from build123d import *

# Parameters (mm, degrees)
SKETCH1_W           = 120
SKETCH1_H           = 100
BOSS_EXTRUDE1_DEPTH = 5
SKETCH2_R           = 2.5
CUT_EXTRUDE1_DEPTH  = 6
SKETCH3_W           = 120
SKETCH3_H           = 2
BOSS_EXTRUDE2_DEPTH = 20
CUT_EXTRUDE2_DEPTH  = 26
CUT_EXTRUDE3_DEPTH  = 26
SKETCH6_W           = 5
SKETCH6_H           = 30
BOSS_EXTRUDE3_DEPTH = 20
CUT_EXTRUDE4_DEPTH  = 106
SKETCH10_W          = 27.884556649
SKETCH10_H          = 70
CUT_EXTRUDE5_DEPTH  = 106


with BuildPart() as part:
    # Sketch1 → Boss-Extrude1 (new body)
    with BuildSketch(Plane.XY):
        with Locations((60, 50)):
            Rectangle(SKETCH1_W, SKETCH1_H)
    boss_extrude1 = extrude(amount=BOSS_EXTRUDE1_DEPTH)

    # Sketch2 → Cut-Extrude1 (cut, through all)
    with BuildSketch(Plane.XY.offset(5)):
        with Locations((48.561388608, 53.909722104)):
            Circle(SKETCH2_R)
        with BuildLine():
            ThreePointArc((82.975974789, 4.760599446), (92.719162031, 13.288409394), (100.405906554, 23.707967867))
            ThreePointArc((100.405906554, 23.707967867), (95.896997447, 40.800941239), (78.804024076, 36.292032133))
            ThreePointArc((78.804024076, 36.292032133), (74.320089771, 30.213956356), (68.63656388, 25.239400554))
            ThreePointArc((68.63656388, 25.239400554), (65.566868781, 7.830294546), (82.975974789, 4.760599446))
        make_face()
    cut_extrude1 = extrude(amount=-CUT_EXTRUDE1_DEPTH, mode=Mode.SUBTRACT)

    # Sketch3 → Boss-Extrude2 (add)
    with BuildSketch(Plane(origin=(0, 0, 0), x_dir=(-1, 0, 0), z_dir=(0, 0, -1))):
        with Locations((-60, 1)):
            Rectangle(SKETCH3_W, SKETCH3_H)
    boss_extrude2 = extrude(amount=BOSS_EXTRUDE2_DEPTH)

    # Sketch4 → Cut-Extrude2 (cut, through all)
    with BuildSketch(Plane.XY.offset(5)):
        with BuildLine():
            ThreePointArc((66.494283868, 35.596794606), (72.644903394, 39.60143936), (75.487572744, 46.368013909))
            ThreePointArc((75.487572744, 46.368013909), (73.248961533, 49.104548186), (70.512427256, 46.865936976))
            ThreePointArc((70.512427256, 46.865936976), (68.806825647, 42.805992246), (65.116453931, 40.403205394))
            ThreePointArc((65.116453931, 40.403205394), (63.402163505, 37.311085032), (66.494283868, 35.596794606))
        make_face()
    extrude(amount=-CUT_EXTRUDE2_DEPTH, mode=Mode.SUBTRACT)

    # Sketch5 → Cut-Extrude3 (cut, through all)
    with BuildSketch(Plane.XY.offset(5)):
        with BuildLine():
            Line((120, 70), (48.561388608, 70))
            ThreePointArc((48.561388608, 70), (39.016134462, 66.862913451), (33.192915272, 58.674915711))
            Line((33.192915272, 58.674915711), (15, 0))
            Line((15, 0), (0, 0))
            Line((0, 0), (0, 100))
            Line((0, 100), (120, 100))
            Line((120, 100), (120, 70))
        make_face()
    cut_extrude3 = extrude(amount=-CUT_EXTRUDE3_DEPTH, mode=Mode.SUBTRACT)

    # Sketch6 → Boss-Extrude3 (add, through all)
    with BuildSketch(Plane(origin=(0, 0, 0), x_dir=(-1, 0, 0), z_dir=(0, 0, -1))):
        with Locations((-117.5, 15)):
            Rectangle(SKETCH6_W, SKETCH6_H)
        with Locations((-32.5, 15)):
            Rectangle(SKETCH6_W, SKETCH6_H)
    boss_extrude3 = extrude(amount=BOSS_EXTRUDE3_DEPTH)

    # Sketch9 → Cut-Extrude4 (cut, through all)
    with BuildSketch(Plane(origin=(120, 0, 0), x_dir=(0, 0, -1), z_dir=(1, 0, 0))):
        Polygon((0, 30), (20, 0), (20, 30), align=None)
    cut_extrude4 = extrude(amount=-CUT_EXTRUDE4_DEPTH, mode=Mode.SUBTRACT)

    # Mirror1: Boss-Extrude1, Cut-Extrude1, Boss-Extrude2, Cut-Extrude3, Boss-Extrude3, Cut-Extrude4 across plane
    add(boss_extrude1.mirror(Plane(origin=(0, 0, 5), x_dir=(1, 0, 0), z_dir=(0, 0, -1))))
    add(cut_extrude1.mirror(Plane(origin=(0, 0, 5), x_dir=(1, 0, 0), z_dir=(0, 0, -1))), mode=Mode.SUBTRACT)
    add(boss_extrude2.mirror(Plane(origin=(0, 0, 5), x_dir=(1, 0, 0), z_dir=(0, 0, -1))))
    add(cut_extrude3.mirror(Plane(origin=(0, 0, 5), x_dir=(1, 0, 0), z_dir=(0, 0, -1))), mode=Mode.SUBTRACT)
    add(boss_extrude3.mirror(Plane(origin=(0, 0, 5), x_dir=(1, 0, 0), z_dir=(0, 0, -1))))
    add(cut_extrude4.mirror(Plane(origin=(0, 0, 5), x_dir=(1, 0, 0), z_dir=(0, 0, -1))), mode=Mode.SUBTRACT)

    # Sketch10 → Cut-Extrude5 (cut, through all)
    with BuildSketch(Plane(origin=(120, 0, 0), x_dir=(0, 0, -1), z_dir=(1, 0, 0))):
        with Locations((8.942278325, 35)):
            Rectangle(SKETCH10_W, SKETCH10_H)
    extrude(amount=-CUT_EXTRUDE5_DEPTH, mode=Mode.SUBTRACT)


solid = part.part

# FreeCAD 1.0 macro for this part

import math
import FreeCAD as App
import Part
import Sketcher
Q = App.Units.Quantity

doc = App.newDocument("Part")
body = doc.addObject("PartDesign::Body", "Body")

sketch1 = doc.addObject("Sketcher::SketchObject", "Sketch")
body.addObject(sketch1)
sketch1.AttachmentSupport = (doc.XY_Plane, [""])
sketch1.MapMode = "FlatFace"
sketch1.addGeometry(Part.LineSegment(App.Vector(0, 100, 0), App.Vector(0, 0, 0)), False)
sketch1.addGeometry(Part.LineSegment(App.Vector(0, 0, 0), App.Vector(120, 0, 0)), False)
sketch1.addGeometry(Part.LineSegment(App.Vector(120, 0, 0), App.Vector(120, 100, 0)), False)
sketch1.addGeometry(Part.LineSegment(App.Vector(120, 100, 0), App.Vector(0, 100, 0)), False)
sketch1.addConstraint(Sketcher.Constraint("Coincident", 0, 2, 1, 1))
sketch1.addConstraint(Sketcher.Constraint("Coincident", 1, 2, 2, 1))
sketch1.addConstraint(Sketcher.Constraint("Coincident", 2, 2, 3, 1))
sketch1.addConstraint(Sketcher.Constraint("Coincident", 3, 2, 0, 1))
sketch1.addConstraint(Sketcher.Constraint("Vertical", 0))
sketch1.addConstraint(Sketcher.Constraint("Horizontal", 1))
sketch1.addConstraint(Sketcher.Constraint("Vertical", 2))
sketch1.addConstraint(Sketcher.Constraint("Horizontal", 3))
sketch1.addConstraint(Sketcher.Constraint("Coincident", 0, 2, -1, 1))
sketch1.addConstraint(Sketcher.Constraint("DistanceX", 1, 1, 1, 2, Q("120 mm")))
sketch1.addConstraint(Sketcher.Constraint("DistanceY", 0, 2, 0, 1, Q("100 mm")))
pad1 = doc.addObject("PartDesign::Pad", "Pad")
body.addObject(pad1)
pad1.Profile = sketch1
pad1.Length = 5

sketch2 = doc.addObject("Sketcher::SketchObject", "Sketch001")
body.addObject(sketch2)
sketch2.AttachmentSupport = (doc.XY_Plane, [""])
sketch2.MapMode = "FlatFace"
sketch2.AttachmentOffset = App.Placement(App.Vector(0, 0, 5), App.Rotation())
sketch2.addGeometry(Part.Circle(App.Vector(48.6, 53.9, 0), App.Vector(0, 0, 1), 2.5), False)
sketch2.addGeometry(Part.ArcOfCircle(Part.Circle(App.Vector(48.6, 53.9, 0), App.Vector(0, 0, 1), 60), math.radians(-55), math.radians(-30)), False)
sketch2.addGeometry(Part.ArcOfCircle(Part.Circle(App.Vector(89.6, 30, 0), App.Vector(0, 0, 1), 12.5), math.radians(-30), math.radians(150)), False)
sketch2.addGeometry(Part.ArcOfCircle(Part.Circle(App.Vector(48.6, 53.9, 0), App.Vector(0, 0, 1), 35), math.radians(-55), math.radians(-30)), False)
sketch2.addGeometry(Part.ArcOfCircle(Part.Circle(App.Vector(75.8, 15, 0), App.Vector(0, 0, 1), 12.5), math.radians(125), math.radians(305)), False)
sketch2.addConstraint(Sketcher.Constraint("Tangent", 1, 2, 2, 1))
sketch2.addConstraint(Sketcher.Constraint("Tangent", 2, 2, 3, 2))
sketch2.addConstraint(Sketcher.Constraint("Tangent", 3, 1, 4, 1))
sketch2.addConstraint(Sketcher.Constraint("Tangent", 4, 2, 1, 1))
sketch2.addConstraint(Sketcher.Constraint("Coincident", 1, 3, 0, 3))
sketch2.addConstraint(Sketcher.Constraint("Coincident", 3, 3, 0, 3))
sketch2.addConstraint(Sketcher.Constraint("Diameter", 0, Q("5 mm")))
sketch2.addConstraint(Sketcher.Constraint("Radius", 1, Q("60 mm")))
sketch2.addConstraint(Sketcher.Constraint("Radius", 3, Q("35 mm")))
sketch2.addConstraint(Sketcher.Constraint("DistanceY", -1, 1, 2, 3, Q("30 mm")))
sketch2.addConstraint(Sketcher.Constraint("DistanceY", -1, 1, 4, 3, Q("15 mm")))
sketch2.addConstraint(Sketcher.Constraint("DistanceY", -1, 1, 3, 1, Q("25.239401 mm")))
sketch2.addConstraint(Sketcher.Constraint("DistanceX", -1, 1, 0, 3, Q("48.561389 mm")))
pocket1 = doc.addObject("PartDesign::Pocket", "Pocket")
body.addObject(pocket1)
pocket1.Profile = sketch2
pocket1.Type = "ThroughAll"

sketch3 = doc.addObject("Sketcher::SketchObject", "Sketch002")
body.addObject(sketch3)
sketch3.AttachmentSupport = (doc.XY_Plane, [""])
sketch3.MapMode = "FlatFace"
sketch3.addGeometry(Part.LineSegment(App.Vector(120, 2, 0), App.Vector(120, 0, 0)), False)
sketch3.addGeometry(Part.LineSegment(App.Vector(120, 0, 0), App.Vector(0, 0, 0)), False)
sketch3.addGeometry(Part.LineSegment(App.Vector(0, 0, 0), App.Vector(0, 2, 0)), False)
sketch3.addGeometry(Part.LineSegment(App.Vector(0, 2, 0), App.Vector(120, 2, 0)), False)
sketch3.addConstraint(Sketcher.Constraint("Coincident", 0, 2, 1, 1))
sketch3.addConstraint(Sketcher.Constraint("Coincident", 1, 2, 2, 1))
sketch3.addConstraint(Sketcher.Constraint("Coincident", 2, 2, 3, 1))
sketch3.addConstraint(Sketcher.Constraint("Coincident", 3, 2, 0, 1))
sketch3.addConstraint(Sketcher.Constraint("Vertical", 0))
sketch3.addConstraint(Sketcher.Constraint("Horizontal", 1))
sketch3.addConstraint(Sketcher.Constraint("Vertical", 2))
sketch3.addConstraint(Sketcher.Constraint("Horizontal", 3))
sketch3.addConstraint(Sketcher.Constraint("Coincident", 1, 2, -1, 1))
sketch3.addConstraint(Sketcher.Constraint("DistanceX", 1, 2, 1, 1, Q("120 mm")))
sketch3.addConstraint(Sketcher.Constraint("DistanceY", 0, 2, 0, 1, Q("2 mm")))
pad2 = doc.addObject("PartDesign::Pad", "Pad001")
body.addObject(pad2)
pad2.Profile = sketch3
pad2.Length = 20
pad2.Reversed = True

sketch4 = doc.addObject("Sketcher::SketchObject", "Sketch003")
body.addObject(sketch4)
sketch4.AttachmentSupport = (doc.XY_Plane, [""])
sketch4.MapMode = "FlatFace"
sketch4.AttachmentOffset = App.Placement(App.Vector(0, 0, 5), App.Rotation())
sketch4.addGeometry(Part.ArcOfCircle(Part.Circle(App.Vector(63, 47.6, 0), App.Vector(0, 0, 1), 12.5), math.radians(-74), math.radians(-6)), False)
sketch4.addGeometry(Part.ArcOfCircle(Part.Circle(App.Vector(73, 46.6, 0), App.Vector(0, 0, 1), 2.5), math.radians(-6), math.radians(174)), False)
sketch4.addGeometry(Part.ArcOfCircle(Part.Circle(App.Vector(63, 47.6, 0), App.Vector(0, 0, 1), 7.5), math.radians(-74), math.radians(-6)), False)
sketch4.addGeometry(Part.ArcOfCircle(Part.Circle(App.Vector(65.8, 38, 0), App.Vector(0, 0, 1), 2.5), math.radians(106), math.radians(286)), False)
sketch4.addConstraint(Sketcher.Constraint("Tangent", 0, 2, 1, 1))
sketch4.addConstraint(Sketcher.Constraint("Tangent", 1, 2, 2, 2))
sketch4.addConstraint(Sketcher.Constraint("Tangent", 2, 1, 3, 1))
sketch4.addConstraint(Sketcher.Constraint("Tangent", 3, 2, 0, 1))
sketch4.addConstraint(Sketcher.Constraint("Coincident", 2, 3, 0, 3))
sketch4.addConstraint(Sketcher.Constraint("Radius", 0, Q("12.5 mm")))
sketch4.addConstraint(Sketcher.Constraint("Radius", 1, Q("2.5 mm")))
sketch4.addConstraint(Sketcher.Constraint("DistanceX", -1, 1, 1, 3, Q("73 mm")))
sketch4.addConstraint(Sketcher.Constraint("DistanceY", -1, 1, 3, 3, Q("38 mm")))
sketch4.addConstraint(Sketcher.Constraint("DistanceX", -1, 1, 0, 3, Q("63.049709 mm")))
sketch4.addConstraint(Sketcher.Constraint("DistanceY", -1, 1, 0, 3, Q("47.612822 mm")))
pocket2 = doc.addObject("PartDesign::Pocket", "Pocket001")
body.addObject(pocket2)
pocket2.Profile = sketch4
pocket2.Type = "ThroughAll"

sketch5 = doc.addObject("Sketcher::SketchObject", "Sketch004")
body.addObject(sketch5)
sketch5.AttachmentSupport = (doc.XY_Plane, [""])
sketch5.MapMode = "FlatFace"
sketch5.AttachmentOffset = App.Placement(App.Vector(0, 0, 5), App.Rotation())
sketch5.addGeometry(Part.LineSegment(App.Vector(49, 70, 0), App.Vector(120, 70, 0)), False)
sketch5.addGeometry(Part.LineSegment(App.Vector(120, 70, 0), App.Vector(120, 100, 0)), False)
sketch5.addGeometry(Part.LineSegment(App.Vector(120, 100, 0), App.Vector(0, 100, 0)), False)
sketch5.addGeometry(Part.LineSegment(App.Vector(0, 100, 0), App.Vector(0, 0, 0)), False)
sketch5.addGeometry(Part.LineSegment(App.Vector(0, 0, 0), App.Vector(15, 0, 0)), False)
sketch5.addGeometry(Part.LineSegment(App.Vector(15, 0, 0), App.Vector(33, 59, 0)), False)
sketch5.addGeometry(Part.ArcOfCircle(Part.Circle(App.Vector(49, 54, 0), App.Vector(0, 0, 1), 16), math.radians(90), math.radians(163)), False)
sketch5.addConstraint(Sketcher.Constraint("Coincident", 0, 2, 1, 1))
sketch5.addConstraint(Sketcher.Constraint("Coincident", 1, 2, 2, 1))
sketch5.addConstraint(Sketcher.Constraint("Coincident", 2, 2, 3, 1))
sketch5.addConstraint(Sketcher.Constraint("Coincident", 3, 2, 4, 1))
sketch5.addConstraint(Sketcher.Constraint("Coincident", 4, 2, 5, 1))
sketch5.addConstraint(Sketcher.Constraint("Tangent", 5, 2, 6, 2))
sketch5.addConstraint(Sketcher.Constraint("Tangent", 6, 1, 0, 1))
sketch5.addConstraint(Sketcher.Constraint("Horizontal", 0))
sketch5.addConstraint(Sketcher.Constraint("Vertical", 1))
sketch5.addConstraint(Sketcher.Constraint("Horizontal", 2))
sketch5.addConstraint(Sketcher.Constraint("Vertical", 3))
sketch5.addConstraint(Sketcher.Constraint("Horizontal", 4))
sketch5.addConstraint(Sketcher.Constraint("Coincident", 3, 2, -1, 1))
sketch5.addConstraint(Sketcher.Constraint("DistanceX", 2, 2, 2, 1, Q("120 mm")))
sketch5.addConstraint(Sketcher.Constraint("DistanceX", 4, 1, 4, 2, Q("15 mm")))
sketch5.addConstraint(Sketcher.Constraint("DistanceY", 1, 1, 1, 2, Q("30 mm")))
sketch5.addConstraint(Sketcher.Constraint("DistanceY", 3, 2, 3, 1, Q("100 mm")))
sketch5.addConstraint(Sketcher.Constraint("Radius", 6, Q("16.090278 mm")))
sketch5.addConstraint(Sketcher.Constraint("DistanceX", 0, 1, 0, 2, Q("71.438611 mm")))
pocket3 = doc.addObject("PartDesign::Pocket", "Pocket002")
body.addObject(pocket3)
pocket3.Profile = sketch5
pocket3.Type = "ThroughAll"

sketch6 = doc.addObject("Sketcher::SketchObject", "Sketch005")
body.addObject(sketch6)
sketch6.AttachmentSupport = (doc.XY_Plane, [""])
sketch6.MapMode = "FlatFace"
sketch6.addGeometry(Part.LineSegment(App.Vector(120, 30, 0), App.Vector(120, 0, 0)), False)
sketch6.addGeometry(Part.LineSegment(App.Vector(120, 0, 0), App.Vector(115, 0, 0)), False)
sketch6.addGeometry(Part.LineSegment(App.Vector(115, 0, 0), App.Vector(115, 30, 0)), False)
sketch6.addGeometry(Part.LineSegment(App.Vector(115, 30, 0), App.Vector(120, 30, 0)), False)
sketch6.addGeometry(Part.LineSegment(App.Vector(35, 30, 0), App.Vector(35, 0, 0)), False)
sketch6.addGeometry(Part.LineSegment(App.Vector(35, 0, 0), App.Vector(30, 0, 0)), False)
sketch6.addGeometry(Part.LineSegment(App.Vector(30, 0, 0), App.Vector(30, 30, 0)), False)
sketch6.addGeometry(Part.LineSegment(App.Vector(30, 30, 0), App.Vector(35, 30, 0)), False)
sketch6.addConstraint(Sketcher.Constraint("Coincident", 0, 2, 1, 1))
sketch6.addConstraint(Sketcher.Constraint("Coincident", 1, 2, 2, 1))
sketch6.addConstraint(Sketcher.Constraint("Coincident", 2, 2, 3, 1))
sketch6.addConstraint(Sketcher.Constraint("Coincident", 3, 2, 0, 1))
sketch6.addConstraint(Sketcher.Constraint("Coincident", 4, 2, 5, 1))
sketch6.addConstraint(Sketcher.Constraint("Coincident", 5, 2, 6, 1))
sketch6.addConstraint(Sketcher.Constraint("Coincident", 6, 2, 7, 1))
sketch6.addConstraint(Sketcher.Constraint("Coincident", 7, 2, 4, 1))
sketch6.addConstraint(Sketcher.Constraint("Vertical", 0))
sketch6.addConstraint(Sketcher.Constraint("Horizontal", 1))
sketch6.addConstraint(Sketcher.Constraint("Vertical", 2))
sketch6.addConstraint(Sketcher.Constraint("Horizontal", 3))
sketch6.addConstraint(Sketcher.Constraint("Vertical", 4))
sketch6.addConstraint(Sketcher.Constraint("Horizontal", 5))
sketch6.addConstraint(Sketcher.Constraint("Vertical", 6))
sketch6.addConstraint(Sketcher.Constraint("Horizontal", 7))
sketch6.addConstraint(Sketcher.Constraint("PointOnObject", 0, 2, -1))
sketch6.addConstraint(Sketcher.Constraint("PointOnObject", 4, 2, -1))
sketch6.addConstraint(Sketcher.Constraint("Horizontal", 3, 2, 6, 2))
sketch6.addConstraint(Sketcher.Constraint("Equal", 3, 5))
sketch6.addConstraint(Sketcher.Constraint("DistanceX", 1, 2, 1, 1, Q("5 mm")))
sketch6.addConstraint(Sketcher.Constraint("DistanceY", 0, 2, 0, 1, Q("30 mm")))
sketch6.addConstraint(Sketcher.Constraint("DistanceX", -1, 1, 0, 2, Q("120 mm")))
sketch6.addConstraint(Sketcher.Constraint("DistanceX", -1, 1, 4, 2, Q("35 mm")))
pad3 = doc.addObject("PartDesign::Pad", "Pad002")
body.addObject(pad3)
pad3.Profile = sketch6
pad3.Length = 20
pad3.Reversed = True

sketch7 = doc.addObject("Sketcher::SketchObject", "Sketch006")
body.addObject(sketch7)
sketch7.AttachmentSupport = (doc.YZ_Plane, [""])
sketch7.MapMode = "FlatFace"
sketch7.AttachmentOffset = App.Placement(App.Vector(0, 0, 120), App.Rotation())
sketch7.addGeometry(Part.LineSegment(App.Vector(30, 0, 0), App.Vector(0, -20, 0)), False)
sketch7.addGeometry(Part.LineSegment(App.Vector(0, -20, 0), App.Vector(30, -20, 0)), False)
sketch7.addGeometry(Part.LineSegment(App.Vector(30, -20, 0), App.Vector(30, 0, 0)), False)
sketch7.addConstraint(Sketcher.Constraint("Coincident", 0, 2, 1, 1))
sketch7.addConstraint(Sketcher.Constraint("Coincident", 1, 2, 2, 1))
sketch7.addConstraint(Sketcher.Constraint("Coincident", 2, 2, 0, 1))
sketch7.addConstraint(Sketcher.Constraint("Horizontal", 1))
sketch7.addConstraint(Sketcher.Constraint("Vertical", 2))
sketch7.addConstraint(Sketcher.Constraint("PointOnObject", 0, 2, -2))
sketch7.addConstraint(Sketcher.Constraint("PointOnObject", 2, 2, -1))
sketch7.addConstraint(Sketcher.Constraint("DistanceX", 1, 1, 1, 2, Q("30 mm")))
sketch7.addConstraint(Sketcher.Constraint("DistanceY", 2, 1, 2, 2, Q("20 mm")))
pocket4 = doc.addObject("PartDesign::Pocket", "Pocket003")
body.addObject(pocket4)
pocket4.Profile = sketch7
pocket4.Type = "ThroughAll"
doc.recompute()

datumplane = doc.addObject("PartDesign::Plane", "DatumPlane")
body.addObject(datumplane)
datumplane.AttachmentSupport = (doc.XY_Plane, [""])
datumplane.MapMode = "FlatFace"
datumplane.AttachmentOffset = App.Placement(App.Vector(0, 0, 5), App.Rotation())
mirrored = doc.addObject("PartDesign::Mirrored", "Mirrored")
body.addObject(mirrored)
mirrored.Originals = [pad1, pocket1, pad2, pocket3, pad3, pocket4]
mirrored.MirrorPlane = (datumplane, [""])
body.Tip = mirrored

sketch8 = doc.addObject("Sketcher::SketchObject", "Sketch007")
body.addObject(sketch8)
sketch8.AttachmentSupport = (doc.YZ_Plane, [""])
sketch8.MapMode = "FlatFace"
sketch8.AttachmentOffset = App.Placement(App.Vector(0, 0, 120), App.Rotation())
sketch8.addGeometry(Part.LineSegment(App.Vector(70, 5, 0), App.Vector(0, 5, 0)), False)
sketch8.addGeometry(Part.LineSegment(App.Vector(0, 5, 0), App.Vector(0, -23, 0)), False)
sketch8.addGeometry(Part.LineSegment(App.Vector(0, -23, 0), App.Vector(70, -23, 0)), False)
sketch8.addGeometry(Part.LineSegment(App.Vector(70, -23, 0), App.Vector(70, 5, 0)), False)
sketch8.addConstraint(Sketcher.Constraint("Coincident", 0, 2, 1, 1))
sketch8.addConstraint(Sketcher.Constraint("Coincident", 1, 2, 2, 1))
sketch8.addConstraint(Sketcher.Constraint("Coincident", 2, 2, 3, 1))
sketch8.addConstraint(Sketcher.Constraint("Coincident", 3, 2, 0, 1))
sketch8.addConstraint(Sketcher.Constraint("Horizontal", 0))
sketch8.addConstraint(Sketcher.Constraint("Vertical", 1))
sketch8.addConstraint(Sketcher.Constraint("Horizontal", 2))
sketch8.addConstraint(Sketcher.Constraint("Vertical", 3))
sketch8.addConstraint(Sketcher.Constraint("PointOnObject", 0, 2, -2))
sketch8.addConstraint(Sketcher.Constraint("DistanceX", 0, 2, 0, 1, Q("70 mm")))
sketch8.addConstraint(Sketcher.Constraint("DistanceY", -1, 1, 0, 2, Q("5 mm")))
sketch8.addConstraint(Sketcher.Constraint("DistanceY", 1, 2, 1, 1, Q("27.884557 mm")))
pocket5 = doc.addObject("PartDesign::Pocket", "Pocket004")
body.addObject(pocket5)
pocket5.Profile = sketch8
pocket5.Type = "ThroughAll"

doc.recompute()
